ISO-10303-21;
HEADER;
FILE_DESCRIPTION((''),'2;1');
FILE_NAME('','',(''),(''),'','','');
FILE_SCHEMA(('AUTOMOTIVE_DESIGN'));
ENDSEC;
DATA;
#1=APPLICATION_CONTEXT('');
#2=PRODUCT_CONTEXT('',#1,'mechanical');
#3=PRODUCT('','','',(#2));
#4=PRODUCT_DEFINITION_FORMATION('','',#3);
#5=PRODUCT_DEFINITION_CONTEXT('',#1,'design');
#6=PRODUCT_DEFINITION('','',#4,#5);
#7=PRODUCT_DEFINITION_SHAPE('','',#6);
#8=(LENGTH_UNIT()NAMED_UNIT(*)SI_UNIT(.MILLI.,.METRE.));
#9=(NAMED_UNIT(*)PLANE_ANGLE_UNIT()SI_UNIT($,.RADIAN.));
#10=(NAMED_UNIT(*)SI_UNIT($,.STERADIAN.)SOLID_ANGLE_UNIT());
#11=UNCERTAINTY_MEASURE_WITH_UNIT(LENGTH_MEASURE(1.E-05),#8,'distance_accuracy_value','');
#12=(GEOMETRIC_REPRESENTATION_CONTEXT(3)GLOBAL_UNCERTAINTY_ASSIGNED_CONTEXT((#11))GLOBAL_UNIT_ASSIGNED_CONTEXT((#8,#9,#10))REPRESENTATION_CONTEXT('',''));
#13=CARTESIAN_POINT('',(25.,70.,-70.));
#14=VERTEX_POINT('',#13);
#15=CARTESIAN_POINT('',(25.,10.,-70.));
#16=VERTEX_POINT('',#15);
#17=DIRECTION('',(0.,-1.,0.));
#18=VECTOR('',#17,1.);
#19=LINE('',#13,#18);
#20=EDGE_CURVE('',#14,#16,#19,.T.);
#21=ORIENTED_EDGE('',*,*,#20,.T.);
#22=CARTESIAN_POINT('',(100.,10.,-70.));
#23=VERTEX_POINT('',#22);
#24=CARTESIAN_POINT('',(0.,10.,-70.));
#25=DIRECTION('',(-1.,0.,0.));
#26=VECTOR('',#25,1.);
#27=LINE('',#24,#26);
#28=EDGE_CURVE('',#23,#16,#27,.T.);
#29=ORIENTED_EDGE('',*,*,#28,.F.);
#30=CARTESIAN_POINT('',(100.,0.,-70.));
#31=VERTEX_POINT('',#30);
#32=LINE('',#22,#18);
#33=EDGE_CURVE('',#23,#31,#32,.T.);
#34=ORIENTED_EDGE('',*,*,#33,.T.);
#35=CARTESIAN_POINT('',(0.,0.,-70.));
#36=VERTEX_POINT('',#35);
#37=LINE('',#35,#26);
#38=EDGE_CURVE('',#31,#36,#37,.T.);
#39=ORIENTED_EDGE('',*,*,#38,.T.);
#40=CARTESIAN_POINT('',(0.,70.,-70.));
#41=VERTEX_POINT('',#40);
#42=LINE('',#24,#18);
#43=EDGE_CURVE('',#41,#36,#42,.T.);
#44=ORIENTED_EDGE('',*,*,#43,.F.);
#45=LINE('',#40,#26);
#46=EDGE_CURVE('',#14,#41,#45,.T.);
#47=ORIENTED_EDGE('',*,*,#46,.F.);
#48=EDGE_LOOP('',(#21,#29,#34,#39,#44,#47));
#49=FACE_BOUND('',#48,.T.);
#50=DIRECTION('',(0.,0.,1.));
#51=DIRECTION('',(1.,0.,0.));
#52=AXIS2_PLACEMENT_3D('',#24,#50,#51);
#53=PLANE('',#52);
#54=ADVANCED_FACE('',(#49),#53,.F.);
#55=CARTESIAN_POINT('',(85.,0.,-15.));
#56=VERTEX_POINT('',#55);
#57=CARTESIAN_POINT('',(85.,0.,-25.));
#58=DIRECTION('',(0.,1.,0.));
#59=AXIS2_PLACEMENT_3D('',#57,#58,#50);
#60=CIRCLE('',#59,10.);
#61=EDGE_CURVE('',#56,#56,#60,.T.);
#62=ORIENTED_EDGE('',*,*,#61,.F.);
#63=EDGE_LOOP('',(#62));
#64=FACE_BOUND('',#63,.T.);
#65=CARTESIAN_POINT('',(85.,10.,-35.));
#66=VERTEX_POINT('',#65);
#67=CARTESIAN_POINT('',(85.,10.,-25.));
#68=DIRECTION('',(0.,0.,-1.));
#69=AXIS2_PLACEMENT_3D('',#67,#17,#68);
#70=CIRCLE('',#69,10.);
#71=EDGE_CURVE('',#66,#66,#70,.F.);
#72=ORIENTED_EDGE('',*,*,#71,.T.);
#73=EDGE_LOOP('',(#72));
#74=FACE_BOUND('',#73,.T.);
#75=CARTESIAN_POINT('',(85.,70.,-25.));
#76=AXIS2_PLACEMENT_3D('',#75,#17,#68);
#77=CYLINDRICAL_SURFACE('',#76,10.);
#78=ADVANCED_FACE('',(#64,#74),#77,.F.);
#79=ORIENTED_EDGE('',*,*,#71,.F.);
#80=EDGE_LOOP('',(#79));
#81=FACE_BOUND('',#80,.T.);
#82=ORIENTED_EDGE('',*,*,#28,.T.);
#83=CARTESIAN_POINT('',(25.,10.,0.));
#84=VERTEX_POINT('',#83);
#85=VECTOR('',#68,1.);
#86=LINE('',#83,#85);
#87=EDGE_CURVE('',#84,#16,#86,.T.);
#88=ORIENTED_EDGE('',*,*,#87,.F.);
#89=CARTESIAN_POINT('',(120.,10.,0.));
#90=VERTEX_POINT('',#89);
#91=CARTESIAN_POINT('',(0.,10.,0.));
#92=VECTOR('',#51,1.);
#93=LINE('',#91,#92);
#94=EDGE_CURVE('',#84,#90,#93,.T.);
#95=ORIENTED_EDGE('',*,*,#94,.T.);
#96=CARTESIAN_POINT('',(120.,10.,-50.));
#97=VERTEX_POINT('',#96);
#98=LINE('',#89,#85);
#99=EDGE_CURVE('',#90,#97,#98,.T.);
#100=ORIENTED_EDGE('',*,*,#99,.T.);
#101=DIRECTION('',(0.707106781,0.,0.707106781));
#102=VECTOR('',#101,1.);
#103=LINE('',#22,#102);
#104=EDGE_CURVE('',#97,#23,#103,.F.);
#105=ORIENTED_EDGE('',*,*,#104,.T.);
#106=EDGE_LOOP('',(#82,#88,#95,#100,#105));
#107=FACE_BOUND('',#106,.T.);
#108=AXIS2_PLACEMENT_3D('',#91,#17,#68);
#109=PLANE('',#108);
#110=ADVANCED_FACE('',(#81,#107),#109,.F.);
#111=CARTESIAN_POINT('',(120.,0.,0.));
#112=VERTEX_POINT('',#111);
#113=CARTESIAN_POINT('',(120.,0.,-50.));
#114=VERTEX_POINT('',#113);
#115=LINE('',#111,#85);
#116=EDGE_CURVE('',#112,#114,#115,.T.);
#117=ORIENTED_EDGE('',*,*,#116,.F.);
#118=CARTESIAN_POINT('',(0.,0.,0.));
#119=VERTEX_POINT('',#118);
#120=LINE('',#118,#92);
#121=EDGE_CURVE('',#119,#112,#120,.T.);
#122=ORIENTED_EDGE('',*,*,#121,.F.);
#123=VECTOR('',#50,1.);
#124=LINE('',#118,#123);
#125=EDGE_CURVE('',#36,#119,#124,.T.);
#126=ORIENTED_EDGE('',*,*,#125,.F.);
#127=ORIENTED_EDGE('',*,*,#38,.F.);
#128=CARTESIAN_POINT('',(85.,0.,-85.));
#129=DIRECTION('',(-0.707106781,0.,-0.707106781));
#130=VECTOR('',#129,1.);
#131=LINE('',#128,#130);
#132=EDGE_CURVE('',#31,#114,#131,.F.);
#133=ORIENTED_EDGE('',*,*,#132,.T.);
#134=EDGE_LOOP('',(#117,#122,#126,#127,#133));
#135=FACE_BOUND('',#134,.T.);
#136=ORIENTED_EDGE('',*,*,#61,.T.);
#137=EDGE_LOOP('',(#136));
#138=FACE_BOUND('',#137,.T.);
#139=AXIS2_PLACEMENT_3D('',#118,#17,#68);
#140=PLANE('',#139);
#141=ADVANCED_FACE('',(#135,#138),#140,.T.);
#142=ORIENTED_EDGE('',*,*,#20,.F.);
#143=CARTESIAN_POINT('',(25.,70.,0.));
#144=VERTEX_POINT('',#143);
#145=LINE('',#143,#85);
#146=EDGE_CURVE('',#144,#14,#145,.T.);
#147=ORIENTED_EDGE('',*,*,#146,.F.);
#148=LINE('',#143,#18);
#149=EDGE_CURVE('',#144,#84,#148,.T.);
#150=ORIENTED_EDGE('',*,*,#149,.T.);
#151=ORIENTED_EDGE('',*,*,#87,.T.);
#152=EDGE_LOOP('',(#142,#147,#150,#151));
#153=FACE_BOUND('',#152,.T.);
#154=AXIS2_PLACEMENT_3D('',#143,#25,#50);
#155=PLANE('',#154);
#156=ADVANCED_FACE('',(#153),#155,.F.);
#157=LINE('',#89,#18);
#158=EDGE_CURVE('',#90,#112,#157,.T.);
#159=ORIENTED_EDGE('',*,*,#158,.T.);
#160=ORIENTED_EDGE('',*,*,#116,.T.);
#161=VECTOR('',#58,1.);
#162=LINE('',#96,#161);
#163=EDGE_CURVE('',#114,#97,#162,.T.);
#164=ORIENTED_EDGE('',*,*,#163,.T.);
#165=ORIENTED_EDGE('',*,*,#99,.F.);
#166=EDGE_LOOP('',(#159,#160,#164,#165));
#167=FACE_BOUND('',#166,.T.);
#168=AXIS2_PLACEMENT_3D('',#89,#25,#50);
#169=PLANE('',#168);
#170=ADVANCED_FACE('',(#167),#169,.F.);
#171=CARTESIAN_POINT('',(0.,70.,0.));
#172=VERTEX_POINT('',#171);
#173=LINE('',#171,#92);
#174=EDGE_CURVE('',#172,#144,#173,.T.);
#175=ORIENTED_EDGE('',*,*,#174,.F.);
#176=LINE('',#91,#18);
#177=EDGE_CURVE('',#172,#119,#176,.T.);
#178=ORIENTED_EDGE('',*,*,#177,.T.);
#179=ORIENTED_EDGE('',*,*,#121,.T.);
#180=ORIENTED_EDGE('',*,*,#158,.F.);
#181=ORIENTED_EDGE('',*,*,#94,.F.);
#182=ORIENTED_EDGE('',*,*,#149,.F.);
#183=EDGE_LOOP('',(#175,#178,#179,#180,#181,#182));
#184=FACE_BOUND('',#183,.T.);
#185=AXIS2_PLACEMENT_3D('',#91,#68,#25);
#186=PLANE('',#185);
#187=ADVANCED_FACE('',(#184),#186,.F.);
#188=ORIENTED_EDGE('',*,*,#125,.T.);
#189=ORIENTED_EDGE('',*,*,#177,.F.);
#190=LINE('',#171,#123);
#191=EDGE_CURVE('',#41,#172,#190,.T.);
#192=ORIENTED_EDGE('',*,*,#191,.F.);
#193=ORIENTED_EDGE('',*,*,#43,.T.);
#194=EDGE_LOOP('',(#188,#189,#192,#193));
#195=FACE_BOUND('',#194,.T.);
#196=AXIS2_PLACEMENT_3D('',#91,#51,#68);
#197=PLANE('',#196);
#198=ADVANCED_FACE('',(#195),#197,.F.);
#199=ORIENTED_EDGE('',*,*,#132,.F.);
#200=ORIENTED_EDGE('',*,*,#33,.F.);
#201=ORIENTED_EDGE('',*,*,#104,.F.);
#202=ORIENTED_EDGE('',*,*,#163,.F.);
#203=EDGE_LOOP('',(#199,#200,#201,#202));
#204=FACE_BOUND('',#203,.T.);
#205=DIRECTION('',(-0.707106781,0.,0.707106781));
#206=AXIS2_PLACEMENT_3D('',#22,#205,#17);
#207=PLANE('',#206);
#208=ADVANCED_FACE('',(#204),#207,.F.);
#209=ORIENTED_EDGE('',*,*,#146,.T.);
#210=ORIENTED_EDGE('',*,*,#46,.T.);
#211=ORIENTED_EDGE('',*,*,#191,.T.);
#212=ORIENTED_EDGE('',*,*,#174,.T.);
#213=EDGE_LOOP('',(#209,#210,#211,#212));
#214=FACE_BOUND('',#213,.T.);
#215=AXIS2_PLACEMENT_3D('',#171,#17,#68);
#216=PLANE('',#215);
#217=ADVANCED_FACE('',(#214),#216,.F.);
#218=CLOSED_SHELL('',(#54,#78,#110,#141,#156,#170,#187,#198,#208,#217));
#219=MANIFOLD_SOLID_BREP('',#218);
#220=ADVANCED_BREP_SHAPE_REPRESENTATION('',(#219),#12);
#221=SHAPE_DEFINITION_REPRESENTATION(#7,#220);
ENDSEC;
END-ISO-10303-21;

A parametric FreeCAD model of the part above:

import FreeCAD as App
import Part
import Sketcher


def edges_at(feature, points):
    """Names of the edges that pass closest to the given points."""
    edges = feature.Shape.Edges
    near = lambda p: min(range(len(edges)), key=lambda i: edges[i].distToShape(Part.Vertex(*p))[0])
    return sorted({f"Edge{near(p) + 1}" for p in points})


def add_polygon(sketch, points):
    """Adds a closed chain of lines whose ends are joined by coincident constraints."""
    first, n = sketch.GeometryCount, len(points)
    for a, b in zip(points, points[1:] + points[:1]):
        sketch.addGeometry(Part.LineSegment(App.Vector(*a, 0), App.Vector(*b, 0)), False)
    for i in range(n):
        sketch.addConstraint(Sketcher.Constraint("Coincident", first + i, 2, first + (i + 1) % n, 1))

doc = App.newDocument("Part")
body = doc.addObject("PartDesign::Body", "Body")

# Sketch on XZ plane
sketch1 = doc.addObject("Sketcher::SketchObject", "Sketch")
body.addObject(sketch1)
sketch1.AttachmentSupport = (doc.XZ_Plane, [""])
sketch1.MapMode = "FlatFace"
add_polygon(sketch1, [(0, -70), (0, 0), (120, 0), (120, -70)])  # lines 0-3
sketch1.addConstraint([
    Sketcher.Constraint("Vertical", 0),
    Sketcher.Constraint("Horizontal", 1),
    Sketcher.Constraint("Vertical", 2),
    Sketcher.Constraint("Horizontal", 3),
    Sketcher.Constraint("Coincident", 0, 2, -1, 1),
    Sketcher.Constraint("DistanceX", 1, 1, 1, 2, 120.0),
    Sketcher.Constraint("DistanceY", 0, 1, 0, 2, 70.0),
])
pad1 = doc.addObject("PartDesign::Pad", "Pad")
body.addObject(pad1)
pad1.Profile = sketch1
pad1.Length = 10
pad1.Reversed = True

# Sketch on XZ plane
sketch2 = doc.addObject("Sketcher::SketchObject", "Sketch001")
body.addObject(sketch2)
sketch2.AttachmentSupport = (doc.XZ_Plane, [""])
sketch2.MapMode = "FlatFace"
sketch2.AttachmentOffset = App.Placement(App.Vector(0, 0, -10), App.Rotation())
add_polygon(sketch2, [(0, -70), (0, 0), (25, 0), (25, -70)])  # lines 0-3
sketch2.addConstraint([
    Sketcher.Constraint("Vertical", 0),
    Sketcher.Constraint("Horizontal", 1),
    Sketcher.Constraint("Vertical", 2),
    Sketcher.Constraint("Horizontal", 3),
    Sketcher.Constraint("Coincident", 0, 2, -1, 1),
    Sketcher.Constraint("DistanceX", 1, 1, 1, 2, 25.0),
    Sketcher.Constraint("DistanceY", 0, 1, 0, 2, 70.0),
])
pad2 = doc.addObject("PartDesign::Pad", "Pad001")
body.addObject(pad2)
pad2.Profile = sketch2
pad2.Length = 60
pad2.Reversed = True

# Sketch on XZ plane
sketch3 = doc.addObject("Sketcher::SketchObject", "Sketch002")
body.addObject(sketch3)
sketch3.AttachmentSupport = (doc.XZ_Plane, [""])
sketch3.MapMode = "FlatFace"
sketch3.addGeometry(Part.Circle(App.Vector(85, -25, 0), App.Vector(0, 0, 1), 10), False)
sketch3.addConstraint([
    Sketcher.Constraint("Diameter", 0, 20.0),
    Sketcher.Constraint("DistanceX", -1, 1, 0, 3, 85.0),
    Sketcher.Constraint("DistanceY", 0, 3, -1, 1, 25.0),
])
pocket1 = doc.addObject("PartDesign::Pocket", "Pocket")
body.addObject(pocket1)
pocket1.Profile = sketch3
pocket1.Type = "ThroughAll"
doc.recompute()

chamfer = doc.addObject("PartDesign::Chamfer", "Chamfer")
body.addObject(chamfer)
chamfer.Base = (pocket1, edges_at(pocket1, [(120, 5, -70)]))
chamfer.Size = 20

doc.recompute()
